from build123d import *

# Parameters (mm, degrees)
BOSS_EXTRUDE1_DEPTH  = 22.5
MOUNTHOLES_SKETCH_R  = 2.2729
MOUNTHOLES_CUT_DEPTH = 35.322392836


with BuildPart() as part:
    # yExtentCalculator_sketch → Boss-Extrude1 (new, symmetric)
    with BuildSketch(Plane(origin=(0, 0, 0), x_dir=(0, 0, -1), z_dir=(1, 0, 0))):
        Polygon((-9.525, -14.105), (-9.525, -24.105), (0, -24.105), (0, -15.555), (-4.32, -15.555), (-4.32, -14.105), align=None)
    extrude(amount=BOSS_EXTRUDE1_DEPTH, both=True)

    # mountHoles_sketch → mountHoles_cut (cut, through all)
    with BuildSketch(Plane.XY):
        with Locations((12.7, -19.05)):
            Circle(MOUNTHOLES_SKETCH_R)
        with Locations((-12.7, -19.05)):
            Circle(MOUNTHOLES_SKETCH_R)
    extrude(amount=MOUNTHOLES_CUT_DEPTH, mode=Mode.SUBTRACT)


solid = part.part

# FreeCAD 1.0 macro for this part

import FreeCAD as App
import Part
import Sketcher

V = App.Vector


def add_polygon(sketch, points):
    """Adds a closed chain of lines whose ends are joined by coincident constraints."""
    first, n = sketch.GeometryCount, len(points)
    for a, b in zip(points, points[1:] + points[:1]):
        sketch.addGeometry(Part.LineSegment(App.Vector(*a, 0), App.Vector(*b, 0)), False)
    for i in range(n):
        sketch.addConstraint(Sketcher.Constraint("Coincident", first + i, 2, first + (i + 1) % n, 1))

doc = App.newDocument("Part")
body = doc.addObject("PartDesign::Body", "Body")

sketch1 = doc.addObject("Sketcher::SketchObject", "Sketch")
body.addObject(sketch1)
sketch1.AttachmentSupport = (doc.YZ_Plane, [""])
sketch1.MapMode = "FlatFace"
add_polygon(sketch1, [(-14.1, 9.5), (-24.1, 9.5), (-24.1, 0), (-15.6, 0), (-15.6, 4.3), (-14.1, 4.3)])
sketch1.addConstraint([
    Sketcher.Constraint("Horizontal", 0),
    Sketcher.Constraint("Vertical", 1),
    Sketcher.Constraint("Horizontal", 2),
    Sketcher.Constraint("Vertical", 3),
    Sketcher.Constraint("Horizontal", 4),
    Sketcher.Constraint("Vertical", 5),
    Sketcher.Constraint("PointOnObject", 1, 2, -1),
    Sketcher.Constraint("DistanceX", 0, 2, 0, 1, 10.0),
    Sketcher.Constraint("DistanceX", 2, 1, 2, 2, 8.55),
    Sketcher.Constraint("DistanceY", 3, 1, 3, 2, 4.32),
    Sketcher.Constraint("DistanceY", 1, 2, 1, 1, 9.525),
    Sketcher.Constraint("DistanceX", 0, 2, -1, 1, 24.105),
])
pad1 = doc.addObject("PartDesign::Pad", "Pad")
body.addObject(pad1)
pad1.Profile = sketch1
pad1.Length = 45
pad1.Midplane = True

sketch2 = doc.addObject("Sketcher::SketchObject", "Sketch001")
body.addObject(sketch2)
sketch2.AttachmentSupport = (doc.XY_Plane, [""])
sketch2.MapMode = "FlatFace"
sketch2.addGeometry([
    Part.Circle(V(12.7, -19.1, 0), V(0, 0, 1), 2.3),
    Part.Circle(V(-12.7, -19.1, 0), V(0, 0, 1), 2.3),
], False)
sketch2.addConstraint([
    Sketcher.Constraint("Equal", 0, 1),
    Sketcher.Constraint("Symmetric", 0, 3, 1, 3, -2),
    Sketcher.Constraint("Diameter", 0, 4.5458),
    Sketcher.Constraint("DistanceX", -1, 1, 0, 3, 12.7),
    Sketcher.Constraint("DistanceY", 0, 3, -1, 1, 19.05),
])
pocket1 = doc.addObject("PartDesign::Pocket", "Pocket")
body.addObject(pocket1)
pocket1.Profile = sketch2
pocket1.Type = "ThroughAll"
pocket1.Reversed = True

doc.recompute()
